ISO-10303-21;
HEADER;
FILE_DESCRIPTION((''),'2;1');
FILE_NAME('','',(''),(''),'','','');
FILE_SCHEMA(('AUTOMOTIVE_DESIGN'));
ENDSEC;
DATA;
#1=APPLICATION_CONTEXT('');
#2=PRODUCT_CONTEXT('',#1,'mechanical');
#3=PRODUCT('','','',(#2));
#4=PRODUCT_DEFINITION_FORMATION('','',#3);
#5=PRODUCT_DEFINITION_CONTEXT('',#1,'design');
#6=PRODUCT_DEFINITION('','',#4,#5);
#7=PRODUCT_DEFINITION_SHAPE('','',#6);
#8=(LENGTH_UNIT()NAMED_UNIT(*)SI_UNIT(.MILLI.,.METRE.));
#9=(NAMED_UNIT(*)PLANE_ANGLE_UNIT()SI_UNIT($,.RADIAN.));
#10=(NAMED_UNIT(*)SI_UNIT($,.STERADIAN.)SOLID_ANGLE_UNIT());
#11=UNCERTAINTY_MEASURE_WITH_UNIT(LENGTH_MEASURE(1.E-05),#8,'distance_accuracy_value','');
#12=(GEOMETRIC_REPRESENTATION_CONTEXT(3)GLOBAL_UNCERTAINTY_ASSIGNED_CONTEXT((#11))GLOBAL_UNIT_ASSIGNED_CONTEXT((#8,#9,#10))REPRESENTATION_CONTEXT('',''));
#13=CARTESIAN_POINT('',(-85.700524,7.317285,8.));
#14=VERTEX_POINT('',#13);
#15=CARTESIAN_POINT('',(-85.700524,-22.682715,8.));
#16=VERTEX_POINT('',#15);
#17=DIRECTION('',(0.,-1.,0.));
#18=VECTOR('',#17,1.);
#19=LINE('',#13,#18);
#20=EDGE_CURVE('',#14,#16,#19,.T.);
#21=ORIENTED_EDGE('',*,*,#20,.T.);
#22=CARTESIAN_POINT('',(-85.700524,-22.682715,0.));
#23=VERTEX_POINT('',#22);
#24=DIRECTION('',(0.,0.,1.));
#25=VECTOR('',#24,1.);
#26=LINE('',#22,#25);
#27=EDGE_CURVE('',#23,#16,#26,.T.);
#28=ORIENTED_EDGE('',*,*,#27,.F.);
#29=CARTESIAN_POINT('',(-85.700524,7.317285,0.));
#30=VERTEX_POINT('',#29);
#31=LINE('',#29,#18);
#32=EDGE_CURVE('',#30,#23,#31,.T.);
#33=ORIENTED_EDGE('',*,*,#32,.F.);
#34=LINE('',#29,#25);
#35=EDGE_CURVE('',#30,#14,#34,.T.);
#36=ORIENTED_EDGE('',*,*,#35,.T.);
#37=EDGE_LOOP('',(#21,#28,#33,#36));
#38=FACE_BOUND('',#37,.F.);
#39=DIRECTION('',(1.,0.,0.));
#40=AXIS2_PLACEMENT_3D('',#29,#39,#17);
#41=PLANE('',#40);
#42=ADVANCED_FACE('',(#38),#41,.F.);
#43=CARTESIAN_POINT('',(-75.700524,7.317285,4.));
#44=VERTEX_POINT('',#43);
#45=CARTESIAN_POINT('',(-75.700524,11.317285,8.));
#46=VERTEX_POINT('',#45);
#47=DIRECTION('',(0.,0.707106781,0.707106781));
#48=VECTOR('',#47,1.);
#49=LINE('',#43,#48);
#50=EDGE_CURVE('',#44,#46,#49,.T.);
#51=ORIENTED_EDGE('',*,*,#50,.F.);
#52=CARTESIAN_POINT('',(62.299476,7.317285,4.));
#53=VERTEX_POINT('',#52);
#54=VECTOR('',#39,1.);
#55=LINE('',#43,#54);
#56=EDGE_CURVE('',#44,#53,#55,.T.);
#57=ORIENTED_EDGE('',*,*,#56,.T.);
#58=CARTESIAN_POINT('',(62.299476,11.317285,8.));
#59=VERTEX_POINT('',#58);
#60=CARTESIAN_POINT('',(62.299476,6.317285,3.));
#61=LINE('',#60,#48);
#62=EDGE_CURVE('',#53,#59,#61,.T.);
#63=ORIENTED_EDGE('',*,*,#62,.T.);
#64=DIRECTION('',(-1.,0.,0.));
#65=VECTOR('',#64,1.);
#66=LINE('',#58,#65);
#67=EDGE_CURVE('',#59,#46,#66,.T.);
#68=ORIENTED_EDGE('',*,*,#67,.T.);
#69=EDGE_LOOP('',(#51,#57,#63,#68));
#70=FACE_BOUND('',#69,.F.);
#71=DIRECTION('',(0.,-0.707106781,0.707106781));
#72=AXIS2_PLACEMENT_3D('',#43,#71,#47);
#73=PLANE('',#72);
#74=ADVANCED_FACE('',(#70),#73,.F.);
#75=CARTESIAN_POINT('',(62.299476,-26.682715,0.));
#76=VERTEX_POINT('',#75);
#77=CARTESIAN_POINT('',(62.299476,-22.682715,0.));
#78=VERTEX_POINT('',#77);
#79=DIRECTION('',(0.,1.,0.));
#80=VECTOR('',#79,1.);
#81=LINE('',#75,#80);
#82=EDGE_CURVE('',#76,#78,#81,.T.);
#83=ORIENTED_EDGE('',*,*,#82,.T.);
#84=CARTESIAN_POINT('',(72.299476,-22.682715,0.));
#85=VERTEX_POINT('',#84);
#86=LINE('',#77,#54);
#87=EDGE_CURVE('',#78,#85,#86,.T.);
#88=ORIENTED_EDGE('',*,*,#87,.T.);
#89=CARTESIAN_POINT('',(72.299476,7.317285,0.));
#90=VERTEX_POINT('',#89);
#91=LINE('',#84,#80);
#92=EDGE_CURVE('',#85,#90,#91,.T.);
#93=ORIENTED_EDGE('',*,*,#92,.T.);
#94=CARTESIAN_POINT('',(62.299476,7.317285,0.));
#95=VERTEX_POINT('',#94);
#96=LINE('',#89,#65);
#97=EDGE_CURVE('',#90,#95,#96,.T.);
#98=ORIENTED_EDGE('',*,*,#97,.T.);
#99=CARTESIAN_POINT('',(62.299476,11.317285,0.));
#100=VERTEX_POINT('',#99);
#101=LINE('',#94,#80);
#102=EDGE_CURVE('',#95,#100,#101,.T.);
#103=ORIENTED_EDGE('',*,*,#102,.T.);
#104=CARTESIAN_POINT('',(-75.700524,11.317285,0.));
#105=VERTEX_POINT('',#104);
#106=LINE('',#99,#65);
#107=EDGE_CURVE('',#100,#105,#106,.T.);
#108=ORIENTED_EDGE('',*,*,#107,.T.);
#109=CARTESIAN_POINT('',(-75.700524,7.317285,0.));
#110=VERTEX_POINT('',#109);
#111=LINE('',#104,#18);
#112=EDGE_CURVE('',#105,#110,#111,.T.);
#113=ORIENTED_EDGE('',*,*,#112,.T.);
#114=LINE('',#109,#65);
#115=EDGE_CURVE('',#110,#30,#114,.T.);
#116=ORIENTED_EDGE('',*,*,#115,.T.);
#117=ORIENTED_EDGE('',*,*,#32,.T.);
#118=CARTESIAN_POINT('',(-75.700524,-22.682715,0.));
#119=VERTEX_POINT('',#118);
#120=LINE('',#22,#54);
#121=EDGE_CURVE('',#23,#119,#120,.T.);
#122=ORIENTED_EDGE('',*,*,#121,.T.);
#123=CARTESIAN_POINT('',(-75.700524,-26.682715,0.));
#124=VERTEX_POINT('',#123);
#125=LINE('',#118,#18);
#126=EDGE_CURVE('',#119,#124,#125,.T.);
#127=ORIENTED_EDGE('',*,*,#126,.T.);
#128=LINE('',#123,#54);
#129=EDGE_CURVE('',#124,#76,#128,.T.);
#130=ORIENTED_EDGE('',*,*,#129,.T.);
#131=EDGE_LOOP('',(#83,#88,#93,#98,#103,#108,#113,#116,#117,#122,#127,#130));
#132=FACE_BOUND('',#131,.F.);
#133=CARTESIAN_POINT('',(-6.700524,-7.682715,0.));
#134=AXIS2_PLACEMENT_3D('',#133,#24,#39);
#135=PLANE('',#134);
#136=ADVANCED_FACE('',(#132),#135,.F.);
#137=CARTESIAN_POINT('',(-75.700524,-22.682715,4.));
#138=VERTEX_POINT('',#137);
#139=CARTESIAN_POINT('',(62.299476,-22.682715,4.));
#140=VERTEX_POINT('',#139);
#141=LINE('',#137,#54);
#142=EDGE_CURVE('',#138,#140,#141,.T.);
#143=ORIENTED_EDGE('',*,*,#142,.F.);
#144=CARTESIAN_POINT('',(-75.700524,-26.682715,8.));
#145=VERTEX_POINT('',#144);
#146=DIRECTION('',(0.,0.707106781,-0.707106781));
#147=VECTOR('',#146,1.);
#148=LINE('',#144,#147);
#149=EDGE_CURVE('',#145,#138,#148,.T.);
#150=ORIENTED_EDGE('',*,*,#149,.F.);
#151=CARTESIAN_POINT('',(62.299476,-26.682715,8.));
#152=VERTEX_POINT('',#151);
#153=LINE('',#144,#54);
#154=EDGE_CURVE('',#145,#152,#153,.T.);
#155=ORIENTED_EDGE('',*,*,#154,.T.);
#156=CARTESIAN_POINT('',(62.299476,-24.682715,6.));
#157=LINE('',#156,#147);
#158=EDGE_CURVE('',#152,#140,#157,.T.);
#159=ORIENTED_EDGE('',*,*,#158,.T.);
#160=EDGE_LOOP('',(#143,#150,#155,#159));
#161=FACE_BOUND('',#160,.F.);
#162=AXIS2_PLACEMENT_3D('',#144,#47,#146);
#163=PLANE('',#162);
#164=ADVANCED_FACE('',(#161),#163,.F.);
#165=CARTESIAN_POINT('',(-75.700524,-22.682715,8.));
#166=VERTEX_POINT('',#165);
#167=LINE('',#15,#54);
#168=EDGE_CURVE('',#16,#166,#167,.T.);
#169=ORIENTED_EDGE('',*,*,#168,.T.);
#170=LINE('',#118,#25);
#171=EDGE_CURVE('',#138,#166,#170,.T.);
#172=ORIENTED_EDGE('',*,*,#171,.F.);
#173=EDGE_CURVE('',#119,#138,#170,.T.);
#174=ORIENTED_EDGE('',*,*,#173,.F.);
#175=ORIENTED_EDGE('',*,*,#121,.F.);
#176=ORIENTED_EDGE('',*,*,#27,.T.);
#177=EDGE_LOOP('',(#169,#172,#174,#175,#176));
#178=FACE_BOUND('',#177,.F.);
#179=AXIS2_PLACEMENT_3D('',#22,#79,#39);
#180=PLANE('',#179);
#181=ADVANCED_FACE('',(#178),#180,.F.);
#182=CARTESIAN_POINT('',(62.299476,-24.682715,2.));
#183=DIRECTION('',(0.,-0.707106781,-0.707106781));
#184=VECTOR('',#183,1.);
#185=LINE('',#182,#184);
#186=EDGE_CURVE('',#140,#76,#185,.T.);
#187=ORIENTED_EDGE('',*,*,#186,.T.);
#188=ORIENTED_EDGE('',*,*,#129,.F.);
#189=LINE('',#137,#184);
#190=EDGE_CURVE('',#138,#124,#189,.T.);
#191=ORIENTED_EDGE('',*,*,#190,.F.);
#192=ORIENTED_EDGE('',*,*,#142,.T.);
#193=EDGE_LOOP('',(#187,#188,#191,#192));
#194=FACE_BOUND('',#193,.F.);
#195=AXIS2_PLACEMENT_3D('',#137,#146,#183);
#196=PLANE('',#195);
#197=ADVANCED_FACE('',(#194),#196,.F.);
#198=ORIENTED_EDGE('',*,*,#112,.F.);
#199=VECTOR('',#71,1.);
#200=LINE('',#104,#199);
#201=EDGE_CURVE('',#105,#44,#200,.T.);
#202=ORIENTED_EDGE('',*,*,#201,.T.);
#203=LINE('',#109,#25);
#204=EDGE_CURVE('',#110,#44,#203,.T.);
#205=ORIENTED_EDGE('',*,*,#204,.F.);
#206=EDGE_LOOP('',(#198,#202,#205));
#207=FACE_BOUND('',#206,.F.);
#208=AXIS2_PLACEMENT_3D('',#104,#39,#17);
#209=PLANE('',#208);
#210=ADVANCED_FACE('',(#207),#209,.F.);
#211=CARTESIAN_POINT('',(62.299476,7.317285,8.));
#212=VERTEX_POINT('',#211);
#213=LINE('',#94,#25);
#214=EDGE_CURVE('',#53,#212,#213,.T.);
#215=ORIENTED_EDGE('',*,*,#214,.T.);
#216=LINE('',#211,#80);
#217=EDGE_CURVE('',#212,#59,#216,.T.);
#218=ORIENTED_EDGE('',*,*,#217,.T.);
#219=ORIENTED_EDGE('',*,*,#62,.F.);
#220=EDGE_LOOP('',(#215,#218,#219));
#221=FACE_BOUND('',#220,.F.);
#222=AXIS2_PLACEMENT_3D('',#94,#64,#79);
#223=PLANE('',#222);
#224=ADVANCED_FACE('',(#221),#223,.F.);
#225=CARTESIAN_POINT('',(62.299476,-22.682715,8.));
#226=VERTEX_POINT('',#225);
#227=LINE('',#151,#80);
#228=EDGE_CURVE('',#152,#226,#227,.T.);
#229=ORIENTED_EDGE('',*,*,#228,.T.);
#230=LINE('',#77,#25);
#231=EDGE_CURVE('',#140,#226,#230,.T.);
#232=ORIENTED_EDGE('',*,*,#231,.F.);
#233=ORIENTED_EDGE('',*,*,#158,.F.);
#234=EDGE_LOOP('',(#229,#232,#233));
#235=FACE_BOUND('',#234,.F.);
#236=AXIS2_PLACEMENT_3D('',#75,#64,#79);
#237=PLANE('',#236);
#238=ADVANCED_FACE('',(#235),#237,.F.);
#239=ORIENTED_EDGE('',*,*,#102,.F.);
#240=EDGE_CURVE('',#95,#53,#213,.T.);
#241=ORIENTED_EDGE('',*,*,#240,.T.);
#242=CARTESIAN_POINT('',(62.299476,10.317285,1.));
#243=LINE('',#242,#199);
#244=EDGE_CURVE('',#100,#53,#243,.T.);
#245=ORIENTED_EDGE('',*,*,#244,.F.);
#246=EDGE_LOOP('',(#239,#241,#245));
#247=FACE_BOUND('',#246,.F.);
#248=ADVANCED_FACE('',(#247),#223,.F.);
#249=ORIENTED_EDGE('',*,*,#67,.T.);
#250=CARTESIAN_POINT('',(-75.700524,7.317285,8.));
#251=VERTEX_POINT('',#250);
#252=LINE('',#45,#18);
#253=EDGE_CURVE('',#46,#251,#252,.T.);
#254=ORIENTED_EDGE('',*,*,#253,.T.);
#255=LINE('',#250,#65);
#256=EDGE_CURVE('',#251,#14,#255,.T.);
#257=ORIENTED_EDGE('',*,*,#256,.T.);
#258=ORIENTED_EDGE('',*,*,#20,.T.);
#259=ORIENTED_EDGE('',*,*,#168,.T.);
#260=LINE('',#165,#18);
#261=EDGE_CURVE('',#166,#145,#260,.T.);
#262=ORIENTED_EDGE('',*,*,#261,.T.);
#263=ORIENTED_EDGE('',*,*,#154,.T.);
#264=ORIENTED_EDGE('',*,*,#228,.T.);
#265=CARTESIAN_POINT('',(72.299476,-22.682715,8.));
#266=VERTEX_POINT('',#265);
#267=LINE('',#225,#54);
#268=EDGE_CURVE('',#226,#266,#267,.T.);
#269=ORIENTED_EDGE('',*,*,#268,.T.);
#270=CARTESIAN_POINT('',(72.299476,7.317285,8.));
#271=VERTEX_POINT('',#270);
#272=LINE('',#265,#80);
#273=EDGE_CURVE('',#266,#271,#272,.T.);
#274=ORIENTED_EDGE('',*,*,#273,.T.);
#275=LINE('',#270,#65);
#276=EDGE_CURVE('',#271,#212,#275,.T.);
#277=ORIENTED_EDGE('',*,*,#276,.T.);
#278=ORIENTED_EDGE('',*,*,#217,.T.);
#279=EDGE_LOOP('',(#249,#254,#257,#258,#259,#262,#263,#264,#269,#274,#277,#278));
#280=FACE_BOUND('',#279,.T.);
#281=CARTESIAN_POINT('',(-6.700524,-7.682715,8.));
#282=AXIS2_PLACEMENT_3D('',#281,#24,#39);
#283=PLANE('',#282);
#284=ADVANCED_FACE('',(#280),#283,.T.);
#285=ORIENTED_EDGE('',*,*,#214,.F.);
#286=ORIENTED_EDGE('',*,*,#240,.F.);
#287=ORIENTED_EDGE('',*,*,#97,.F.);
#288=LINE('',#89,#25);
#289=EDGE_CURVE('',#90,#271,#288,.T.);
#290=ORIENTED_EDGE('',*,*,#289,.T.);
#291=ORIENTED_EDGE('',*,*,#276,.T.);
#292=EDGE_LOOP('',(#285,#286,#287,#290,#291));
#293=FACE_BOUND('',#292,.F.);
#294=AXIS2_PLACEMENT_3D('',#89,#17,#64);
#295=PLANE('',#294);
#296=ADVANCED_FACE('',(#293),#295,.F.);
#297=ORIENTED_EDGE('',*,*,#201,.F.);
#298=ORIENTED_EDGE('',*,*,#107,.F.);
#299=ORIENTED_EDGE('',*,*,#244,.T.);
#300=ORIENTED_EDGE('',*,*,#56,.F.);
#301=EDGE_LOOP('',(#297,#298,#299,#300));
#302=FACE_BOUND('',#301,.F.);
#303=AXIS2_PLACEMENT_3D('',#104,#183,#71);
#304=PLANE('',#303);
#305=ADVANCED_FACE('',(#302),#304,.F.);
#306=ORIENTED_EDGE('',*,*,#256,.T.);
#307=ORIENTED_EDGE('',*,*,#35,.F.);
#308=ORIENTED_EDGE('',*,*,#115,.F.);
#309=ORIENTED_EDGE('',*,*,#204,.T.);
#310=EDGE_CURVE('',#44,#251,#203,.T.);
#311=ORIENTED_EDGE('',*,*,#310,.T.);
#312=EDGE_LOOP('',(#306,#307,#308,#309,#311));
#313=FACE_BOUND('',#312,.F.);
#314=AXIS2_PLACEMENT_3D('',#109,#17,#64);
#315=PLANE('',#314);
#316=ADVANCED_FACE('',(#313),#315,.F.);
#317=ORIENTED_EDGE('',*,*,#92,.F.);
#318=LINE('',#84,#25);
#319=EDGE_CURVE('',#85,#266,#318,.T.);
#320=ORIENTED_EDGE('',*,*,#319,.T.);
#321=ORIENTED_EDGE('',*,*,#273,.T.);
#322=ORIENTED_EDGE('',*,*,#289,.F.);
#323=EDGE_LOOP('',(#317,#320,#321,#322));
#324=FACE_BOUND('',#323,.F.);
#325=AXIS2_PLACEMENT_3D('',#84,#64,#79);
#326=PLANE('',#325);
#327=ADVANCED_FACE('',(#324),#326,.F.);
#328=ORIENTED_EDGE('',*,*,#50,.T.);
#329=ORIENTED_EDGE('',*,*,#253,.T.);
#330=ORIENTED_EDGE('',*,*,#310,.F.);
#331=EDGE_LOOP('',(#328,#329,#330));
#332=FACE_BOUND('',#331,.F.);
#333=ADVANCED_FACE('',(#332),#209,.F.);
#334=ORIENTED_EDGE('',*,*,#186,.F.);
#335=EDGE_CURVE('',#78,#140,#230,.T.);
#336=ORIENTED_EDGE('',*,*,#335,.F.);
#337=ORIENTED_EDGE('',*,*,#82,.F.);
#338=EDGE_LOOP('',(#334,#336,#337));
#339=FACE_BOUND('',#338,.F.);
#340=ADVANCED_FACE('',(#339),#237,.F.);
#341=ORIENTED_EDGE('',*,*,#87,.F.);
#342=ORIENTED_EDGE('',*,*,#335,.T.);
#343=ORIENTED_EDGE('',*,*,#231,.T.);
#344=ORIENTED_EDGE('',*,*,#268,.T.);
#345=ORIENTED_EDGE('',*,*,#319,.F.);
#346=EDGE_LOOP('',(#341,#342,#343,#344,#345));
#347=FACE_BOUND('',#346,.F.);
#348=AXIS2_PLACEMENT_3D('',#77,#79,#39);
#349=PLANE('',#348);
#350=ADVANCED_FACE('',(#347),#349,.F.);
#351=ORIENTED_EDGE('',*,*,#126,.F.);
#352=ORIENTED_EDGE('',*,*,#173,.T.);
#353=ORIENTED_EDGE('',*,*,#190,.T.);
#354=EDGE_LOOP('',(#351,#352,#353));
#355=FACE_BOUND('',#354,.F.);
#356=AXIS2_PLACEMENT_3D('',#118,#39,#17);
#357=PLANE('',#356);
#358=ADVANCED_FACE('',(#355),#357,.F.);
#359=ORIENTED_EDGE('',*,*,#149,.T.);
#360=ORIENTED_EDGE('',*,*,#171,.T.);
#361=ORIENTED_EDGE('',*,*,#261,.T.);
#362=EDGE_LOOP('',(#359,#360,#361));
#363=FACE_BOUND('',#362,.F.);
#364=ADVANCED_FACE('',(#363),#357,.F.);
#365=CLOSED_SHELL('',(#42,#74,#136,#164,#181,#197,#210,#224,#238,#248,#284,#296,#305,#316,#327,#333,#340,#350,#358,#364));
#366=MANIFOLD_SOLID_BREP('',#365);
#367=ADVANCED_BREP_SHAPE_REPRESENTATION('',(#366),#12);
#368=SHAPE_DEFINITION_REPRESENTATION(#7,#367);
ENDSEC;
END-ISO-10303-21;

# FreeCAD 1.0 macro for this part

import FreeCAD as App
import Part
import Sketcher

V = App.Vector
Q = App.Units.Quantity


def add_polygon(sketch, points):
    """Adds a closed chain of lines whose ends are joined by coincident constraints."""
    first, n = sketch.GeometryCount, len(points)
    for a, b in zip(points, points[1:] + points[:1]):
        sketch.addGeometry(Part.LineSegment(App.Vector(*a, 0), App.Vector(*b, 0)), False)
    for i in range(n):
        sketch.addConstraint(Sketcher.Constraint("Coincident", first + i, 2, first + (i + 1) % n, 1))

doc = App.newDocument("Part")
body = doc.addObject("PartDesign::Body", "Body")

# Sketch on XY plane
sketch1 = body.newObject("Sketcher::SketchObject", "Sketch")
sketch1.AttachmentSupport = (doc.getObject("XY_Plane"), [""])
sketch1.MapMode = "FlatFace"
add_polygon(sketch1, [(-75.7, 7.3), (-85.7, 7.3), (-85.7, -22.7), (-75.7, -22.7), (-75.7, -26.7), (62.3, -26.7), (62.3, -22.7), (72.3, -22.7), (72.3, 7.3), (62.3, 7.3), (62.3, 11.3), (-75.7, 11.3)])  # lines 0-11
sketch1.addConstraint([
    Sketcher.Constraint("Horizontal", 0),
    Sketcher.Constraint("Vertical", 1),
    Sketcher.Constraint("Horizontal", 2),
    Sketcher.Constraint("Vertical", 3),
    Sketcher.Constraint("Horizontal", 4),
    Sketcher.Constraint("Vertical", 5),
    Sketcher.Constraint("Horizontal", 6),
    Sketcher.Constraint("Vertical", 7),
    Sketcher.Constraint("Horizontal", 8),
    Sketcher.Constraint("Vertical", 9),
    Sketcher.Constraint("Horizontal", 10),
    Sketcher.Constraint("Vertical", 11),
    Sketcher.Constraint("Horizontal", 2, 2, 5, 2),
    Sketcher.Constraint("Horizontal", 0, 2, 7, 2),
    Sketcher.Constraint("Vertical", 5, 2, 8, 2),
    Sketcher.Constraint("Vertical", 3, 2, 10, 2),
    Sketcher.Constraint("Equal", 2, 6),
    Sketcher.Constraint("Equal", 5, 9),
    Sketcher.Constraint("DistanceX", 0, 2, 0, 1, Q("10 mm")),
    Sketcher.Constraint("DistanceX", 4, 1, 4, 2, Q("138 mm")),
    Sketcher.Constraint("DistanceY", 1, 2, 1, 1, Q("30 mm")),
    Sketcher.Constraint("DistanceY", 3, 2, 3, 1, Q("4 mm")),
    Sketcher.Constraint("DistanceX", 0, 2, -1, 1, Q("85.700524 mm")),
    Sketcher.Constraint("DistanceY", -1, 1, 0, 2, Q("7.317285 mm")),
])
pad1 = body.newObject("PartDesign::Pad", "Pad")
pad1.Profile = sketch1
pad1.Length = 8

# Sketch on YZ plane
sketch2 = body.newObject("Sketcher::SketchObject", "Sketch001")
sketch2.AttachmentSupport = (doc.getObject("YZ_Plane"), [""])
sketch2.MapMode = "FlatFace"
sketch2.AttachmentOffset = App.Placement(V(0, 0, -75.700524), App.Rotation())
add_polygon(sketch2, [(-23, 4), (-27, 0), (-27, 8)])  # lines 0-2
add_polygon(sketch2, [(7, 4), (11, 8), (11, 0)])  # lines 3-5
sketch2.addConstraint([
    Sketcher.Constraint("Vertical", 1),
    Sketcher.Constraint("Vertical", 4),
    Sketcher.Constraint("PointOnObject", 0, 2, -1),
    Sketcher.Constraint("PointOnObject", 4, 2, -1),
    Sketcher.Constraint("Perpendicular", 0, 2),
    Sketcher.Constraint("Perpendicular", 2, 3),
    Sketcher.Constraint("Perpendicular", 3, 5),
    Sketcher.Constraint("Horizontal", 1, 2, 3, 2),
    Sketcher.Constraint("Horizontal", 2, 2, 5, 2),
    Sketcher.Constraint("DistanceY", 1, 1, 1, 2, Q("8 mm")),
    Sketcher.Constraint("DistanceX", 2, 2, 3, 2, Q("34 mm")),
    Sketcher.Constraint("DistanceX", 0, 2, -1, 1, Q("26.682715 mm")),
])
pocket1 = body.newObject("PartDesign::Pocket", "Pocket")
pocket1.Profile = sketch2
pocket1.Type = "ThroughAll"
pocket1.Reversed = True

doc.recompute()
